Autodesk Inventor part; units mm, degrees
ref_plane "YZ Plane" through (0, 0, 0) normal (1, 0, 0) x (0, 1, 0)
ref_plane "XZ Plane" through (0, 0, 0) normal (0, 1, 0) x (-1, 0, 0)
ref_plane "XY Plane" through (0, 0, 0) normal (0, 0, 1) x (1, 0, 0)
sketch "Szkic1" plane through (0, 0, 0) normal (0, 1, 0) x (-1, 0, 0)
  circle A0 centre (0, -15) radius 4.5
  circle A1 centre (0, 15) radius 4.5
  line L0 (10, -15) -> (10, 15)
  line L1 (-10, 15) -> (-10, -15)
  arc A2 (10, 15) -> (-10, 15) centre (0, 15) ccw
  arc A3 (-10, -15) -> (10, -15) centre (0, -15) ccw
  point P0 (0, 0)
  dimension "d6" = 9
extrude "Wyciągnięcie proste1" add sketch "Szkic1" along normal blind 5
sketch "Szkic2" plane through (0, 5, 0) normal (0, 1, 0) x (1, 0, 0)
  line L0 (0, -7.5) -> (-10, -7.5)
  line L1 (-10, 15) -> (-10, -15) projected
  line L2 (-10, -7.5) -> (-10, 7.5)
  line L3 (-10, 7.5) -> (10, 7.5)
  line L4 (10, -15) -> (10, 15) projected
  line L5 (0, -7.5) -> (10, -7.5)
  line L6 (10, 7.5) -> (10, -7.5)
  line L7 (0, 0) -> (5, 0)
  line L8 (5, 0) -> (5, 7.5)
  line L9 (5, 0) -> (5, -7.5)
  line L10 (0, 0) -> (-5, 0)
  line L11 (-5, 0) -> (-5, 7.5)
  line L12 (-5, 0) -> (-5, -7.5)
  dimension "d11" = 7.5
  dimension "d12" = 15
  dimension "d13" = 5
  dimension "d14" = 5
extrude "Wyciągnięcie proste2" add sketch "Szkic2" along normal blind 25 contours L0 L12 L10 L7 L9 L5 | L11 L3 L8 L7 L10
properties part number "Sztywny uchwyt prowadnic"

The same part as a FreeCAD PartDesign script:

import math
import FreeCAD as App
import Part
import Sketcher

V = App.Vector
Q = App.Units.Quantity

doc = App.newDocument("Part")
params = doc.addObject("Spreadsheet::Sheet", "Params")
for row, (alias, value) in enumerate([
    ("sketch1_diameter", "9 mm"),
    ("sketch1_radius", "10 mm"),
    ("sketch1_height", "30 mm"),
    ("pad1_length", "5 mm"),
    ("sketch2_height", "15 mm"),
    ("pad2_length", "25 mm"),
], start=1):
    params.set(f"A{row}", alias)
    params.set(f"B{row}", "=" + value)
    params.setAlias(f"B{row}", alias)

body = doc.addObject("PartDesign::Body", "Body")

# Sketch on XZ plane
sketch1 = body.newObject("Sketcher::SketchObject", "Sketch")
sketch1.AttachmentSupport = (doc.getObject("XZ_Plane"), [""])
sketch1.MapMode = "FlatFace"
sketch1.addGeometry(Part.ArcOfCircle(Part.Circle(V(0, -15, 0), V(0, 0, 1), 10), math.radians(180), math.radians(360)), False)
sketch1.addGeometry(Part.LineSegment(V(-10, -15, 0), V(-10, 15, 0)), False)
sketch1.addGeometry(Part.ArcOfCircle(Part.Circle(V(0, 15, 0), V(0, 0, 1), 10), math.radians(0), math.radians(180)), False)
sketch1.addGeometry(Part.LineSegment(V(10, 15, 0), V(10, -15, 0)), False)
sketch1.addGeometry(Part.Circle(V(0, -15, 0), V(0, 0, 1), 4.5), False)
sketch1.addGeometry(Part.Circle(V(0, 15, 0), V(0, 0, 1), 4.5), False)
sketch1.addConstraint(Sketcher.Constraint("Tangent", 0, 1, 1, 1))
sketch1.addConstraint(Sketcher.Constraint("Tangent", 1, 2, 2, 2))
sketch1.addConstraint(Sketcher.Constraint("Tangent", 2, 1, 3, 1))
sketch1.addConstraint(Sketcher.Constraint("Tangent", 3, 2, 0, 2))
sketch1.addConstraint(Sketcher.Constraint("Vertical", 1))
sketch1.addConstraint(Sketcher.Constraint("Vertical", 3))
sketch1.addConstraint(Sketcher.Constraint("Coincident", 4, 3, 0, 3))
sketch1.addConstraint(Sketcher.Constraint("Coincident", 5, 3, 2, 3))
sketch1.addConstraint(Sketcher.Constraint("Equal", 4, 5))
sketch1.addConstraint(Sketcher.Constraint("Symmetric", 0, 3, 2, 3, -1, 1))
sketch1.addConstraint(Sketcher.Constraint("Diameter", 4, Q("9 mm")))
sketch1.addConstraint(Sketcher.Constraint("Radius", 0, Q("10 mm")))
sketch1.addConstraint(Sketcher.Constraint("DistanceY", 1, 1, 1, 2, Q("30 mm")))
sketch1.setExpression("Constraints[10]", "Params.sketch1_diameter")
sketch1.setExpression("Constraints[11]", "Params.sketch1_radius")
sketch1.setExpression("Constraints[12]", "Params.sketch1_height")
pad1 = body.newObject("PartDesign::Pad", "Pad")
pad1.Profile = sketch1
pad1.setExpression("Length", "Params.pad1_length")
pad1.Reversed = True

# Sketch on XZ plane
sketch2 = body.newObject("Sketcher::SketchObject", "Sketch001")
sketch2.AttachmentSupport = (doc.getObject("XZ_Plane"), [""])
sketch2.MapMode = "FlatFace"
sketch2.AttachmentOffset = App.Placement(V(0, 0, -5), App.Rotation())
sketch2.addGeometry(Part.LineSegment(V(-5, 8, 0), V(5, 8, 0)), False)
sketch2.addGeometry(Part.LineSegment(V(5, 8, 0), V(5, -8, 0)), False)
sketch2.addGeometry(Part.LineSegment(V(5, -8, 0), V(-5, -8, 0)), False)
sketch2.addGeometry(Part.LineSegment(V(-5, -8, 0), V(-5, 8, 0)), False)
sketch2.addConstraint(Sketcher.Constraint("Coincident", 0, 2, 1, 1))
sketch2.addConstraint(Sketcher.Constraint("Coincident", 1, 2, 2, 1))
sketch2.addConstraint(Sketcher.Constraint("Coincident", 2, 2, 3, 1))
sketch2.addConstraint(Sketcher.Constraint("Coincident", 3, 2, 0, 1))
sketch2.addConstraint(Sketcher.Constraint("Horizontal", 0))
sketch2.addConstraint(Sketcher.Constraint("Vertical", 1))
sketch2.addConstraint(Sketcher.Constraint("Horizontal", 2))
sketch2.addConstraint(Sketcher.Constraint("Vertical", 3))
sketch2.addConstraint(Sketcher.Constraint("Symmetric", 0, 2, 2, 2, -1, 1))
sketch2.addConstraint(Sketcher.Constraint("DistanceY", 1, 2, 1, 1, Q("15 mm")))
sketch2.addConstraint(Sketcher.Constraint("DistanceX", -1, 1, 0, 2, Q("5 mm")))
sketch2.setExpression("Constraints[9]", "Params.sketch2_height")
pad2 = body.newObject("PartDesign::Pad", "Pad001")
pad2.Profile = sketch2
pad2.setExpression("Length", "Params.pad2_length")
pad2.Reversed = True

doc.recompute()
